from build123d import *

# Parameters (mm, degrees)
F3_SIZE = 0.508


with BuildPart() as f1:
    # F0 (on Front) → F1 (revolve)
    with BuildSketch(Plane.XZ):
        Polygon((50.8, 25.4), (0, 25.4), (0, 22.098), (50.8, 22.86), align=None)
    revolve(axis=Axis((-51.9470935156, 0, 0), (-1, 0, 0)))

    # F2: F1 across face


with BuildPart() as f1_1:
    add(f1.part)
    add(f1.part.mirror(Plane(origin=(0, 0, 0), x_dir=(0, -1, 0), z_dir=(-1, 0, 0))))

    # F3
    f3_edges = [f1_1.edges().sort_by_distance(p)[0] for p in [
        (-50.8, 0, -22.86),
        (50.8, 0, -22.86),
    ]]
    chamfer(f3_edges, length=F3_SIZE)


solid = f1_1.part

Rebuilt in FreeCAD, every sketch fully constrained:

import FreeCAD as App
import Part
import Sketcher
from FreeCAD import Vector
Q = App.Units.Quantity


def edges_at(feature, points):
    """Names of the edges that pass closest to the given points."""
    edges = feature.Shape.Edges
    near = lambda p: min(range(len(edges)), key=lambda i: edges[i].distToShape(Part.Vertex(*p))[0])
    return sorted({f"Edge{near(p) + 1}" for p in points})

doc = App.newDocument("Part")
params = doc.addObject("Spreadsheet::Sheet", "Params")
for row, (alias, value) in enumerate([
    ("sketch1_width", "2 in"),
    ("sketch1_height", "0.1 in"),
    ("sketch1_height2", "0.13 in"),
    ("revolution_angle", "360 deg"),
    ("chamfer_size", "0.02 in"),
], start=1):
    params.set(f"A{row}", alias)
    params.set(f"B{row}", "=" + value)
    params.setAlias(f"B{row}", alias)

body = doc.addObject("PartDesign::Body", "Body")

sketch1 = doc.addObject("Sketcher::SketchObject", "Sketch")
body.addObject(sketch1)
sketch1.AttachmentSupport = (doc.XZ_Plane, [""])
sketch1.MapMode = "FlatFace"
sketch1.addGeometry([
    Part.LineSegment(Vector(50.8, 25.4, 0), Vector(0, 25.4, 0)),
    Part.LineSegment(Vector(0, 25.4, 0), Vector(0, 22.1, 0)),
    Part.LineSegment(Vector(0, 22.1, 0), Vector(50.8, 22.9, 0)),
    Part.LineSegment(Vector(50.8, 22.9, 0), Vector(50.8, 25.4, 0)),
], False)
sketch1.addConstraint([
    Sketcher.Constraint("Coincident", 0, 2, 1, 1),
    Sketcher.Constraint("Coincident", 1, 2, 2, 1),
    Sketcher.Constraint("Coincident", 2, 2, 3, 1),
    Sketcher.Constraint("Coincident", 3, 2, 0, 1),
    Sketcher.Constraint("Horizontal", 0),
    Sketcher.Constraint("Vertical", 1),
    Sketcher.Constraint("Vertical", 3),
    Sketcher.Constraint("PointOnObject", 0, 2, -2),
    Sketcher.Constraint("DistanceX", 0, 2, 0, 1, Q("2 in")),
    Sketcher.Constraint("DistanceY", 3, 1, 3, 2, Q("0.1 in")),
    Sketcher.Constraint("DistanceY", -1, 1, 0, 2, Q("1 in")),
    Sketcher.Constraint("DistanceY", 1, 2, 1, 1, Q("0.13 in")),
])
sketch1.setExpression("Constraints[8]", "Params.sketch1_width")
sketch1.setExpression("Constraints[9]", "Params.sketch1_height")
sketch1.setExpression("Constraints[11]", "Params.sketch1_height2")
revolution = doc.addObject("PartDesign::Revolution", "Revolution")
body.addObject(revolution)
revolution.Profile = sketch1
revolution.ReferenceAxis = (sketch1, ["H_Axis"])
revolution.setExpression("Angle", "Params.revolution_angle")
body2 = doc.addObject("PartDesign::Body", "Body001")
doc.recompute()

body2.BaseFeature = body
doc.recompute()

mirroring = doc.addObject("Part::Mirroring", "Mirroring")
mirroring.Source = body
mirroring.Base = Vector(0, 0, 0)
mirroring.Normal = Vector(-1, 0, 0)
body3 = doc.addObject("PartDesign::Body", "Body002")
body3.BaseFeature = mirroring
boolean = doc.addObject("PartDesign::Boolean", "Boolean")
body2.addObject(boolean)
boolean.Type = "Fuse"
boolean.addObjects([body3])
doc.recompute()

chamfer = doc.addObject("PartDesign::Chamfer", "Chamfer")
body2.addObject(chamfer)
chamfer.Base = (boolean, edges_at(boolean, [(-50.8, 0, -22.86), (50.8, 0, -22.86)]))
chamfer.setExpression("Size", "Params.chamfer_size")
mirroring.Visibility = False

doc.recompute()
